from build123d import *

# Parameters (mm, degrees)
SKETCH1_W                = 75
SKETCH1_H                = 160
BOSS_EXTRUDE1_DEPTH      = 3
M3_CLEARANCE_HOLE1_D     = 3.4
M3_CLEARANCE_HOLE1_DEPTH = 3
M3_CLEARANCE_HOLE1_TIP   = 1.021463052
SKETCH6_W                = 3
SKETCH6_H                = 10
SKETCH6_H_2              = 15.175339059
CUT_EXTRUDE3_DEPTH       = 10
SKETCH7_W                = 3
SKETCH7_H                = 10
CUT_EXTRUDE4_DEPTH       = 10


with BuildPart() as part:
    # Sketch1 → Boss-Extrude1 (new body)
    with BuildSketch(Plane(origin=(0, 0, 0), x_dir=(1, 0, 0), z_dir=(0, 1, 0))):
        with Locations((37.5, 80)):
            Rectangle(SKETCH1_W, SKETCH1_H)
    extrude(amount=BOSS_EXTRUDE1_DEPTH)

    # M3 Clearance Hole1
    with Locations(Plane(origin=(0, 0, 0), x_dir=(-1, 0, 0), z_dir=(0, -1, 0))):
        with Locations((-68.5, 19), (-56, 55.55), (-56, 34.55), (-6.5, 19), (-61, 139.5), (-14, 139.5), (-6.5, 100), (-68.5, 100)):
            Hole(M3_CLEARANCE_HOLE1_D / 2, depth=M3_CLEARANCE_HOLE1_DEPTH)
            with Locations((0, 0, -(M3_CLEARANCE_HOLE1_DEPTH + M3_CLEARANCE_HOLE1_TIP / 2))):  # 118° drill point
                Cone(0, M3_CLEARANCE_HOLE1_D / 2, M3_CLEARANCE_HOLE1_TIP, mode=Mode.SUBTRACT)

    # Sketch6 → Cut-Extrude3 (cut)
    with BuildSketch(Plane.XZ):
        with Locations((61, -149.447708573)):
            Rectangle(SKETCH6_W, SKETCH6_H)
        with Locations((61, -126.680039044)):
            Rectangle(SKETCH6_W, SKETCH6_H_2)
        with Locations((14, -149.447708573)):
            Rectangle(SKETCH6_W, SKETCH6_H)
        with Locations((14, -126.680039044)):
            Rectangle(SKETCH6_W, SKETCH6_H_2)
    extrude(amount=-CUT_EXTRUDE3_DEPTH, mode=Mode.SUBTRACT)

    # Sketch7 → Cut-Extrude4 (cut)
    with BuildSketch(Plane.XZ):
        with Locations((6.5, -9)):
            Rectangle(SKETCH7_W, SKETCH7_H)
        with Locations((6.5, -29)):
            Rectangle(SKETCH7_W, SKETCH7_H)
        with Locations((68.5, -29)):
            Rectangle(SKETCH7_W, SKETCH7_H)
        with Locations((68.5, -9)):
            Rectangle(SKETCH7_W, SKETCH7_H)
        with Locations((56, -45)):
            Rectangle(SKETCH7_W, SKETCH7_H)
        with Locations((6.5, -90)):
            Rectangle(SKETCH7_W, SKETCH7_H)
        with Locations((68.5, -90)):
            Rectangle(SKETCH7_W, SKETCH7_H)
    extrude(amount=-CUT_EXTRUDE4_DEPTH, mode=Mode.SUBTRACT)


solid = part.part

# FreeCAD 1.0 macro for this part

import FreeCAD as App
import Part
import Sketcher
Q = App.Units.Quantity


def add_polygon(sketch, points):
    """Adds a closed chain of lines whose ends are joined by coincident constraints."""
    first, n = sketch.GeometryCount, len(points)
    for a, b in zip(points, points[1:] + points[:1]):
        sketch.addGeometry(Part.LineSegment(App.Vector(*a, 0), App.Vector(*b, 0)), False)
    for i in range(n):
        sketch.addConstraint(Sketcher.Constraint("Coincident", first + i, 2, first + (i + 1) % n, 1))

doc = App.newDocument("Part")
body = doc.addObject("PartDesign::Body", "Body")

sketch1 = doc.addObject("Sketcher::SketchObject", "Sketch")
body.addObject(sketch1)
sketch1.AttachmentSupport = (doc.XZ_Plane, [""])
sketch1.MapMode = "FlatFace"
add_polygon(sketch1, [(0, -160), (0, 0), (75, 0), (75, -160)])
sketch1.addConstraint(Sketcher.Constraint("Vertical", 0))
sketch1.addConstraint(Sketcher.Constraint("Horizontal", 1))
sketch1.addConstraint(Sketcher.Constraint("Vertical", 2))
sketch1.addConstraint(Sketcher.Constraint("Horizontal", 3))
sketch1.addConstraint(Sketcher.Constraint("Coincident", 0, 2, -1, 1))
sketch1.addConstraint(Sketcher.Constraint("DistanceX", 1, 1, 1, 2, Q("75 mm")))
sketch1.addConstraint(Sketcher.Constraint("DistanceY", 0, 1, 0, 2, Q("160 mm")))
pad1 = doc.addObject("PartDesign::Pad", "Pad")
body.addObject(pad1)
pad1.Profile = sketch1
pad1.Length = 3
pad1.Reversed = True

sketch2 = doc.addObject("Sketcher::SketchObject", "Sketch001")
body.addObject(sketch2)
sketch2.AttachmentSupport = (doc.XZ_Plane, [""])
sketch2.MapMode = "FlatFace"
sketch2.addGeometry(Part.Circle(App.Vector(68.5, -19, 0), App.Vector(0, 0, 1), 1.7), False)
sketch2.addGeometry(Part.Circle(App.Vector(56, -55.5, 0), App.Vector(0, 0, 1), 1.7), False)
sketch2.addGeometry(Part.Circle(App.Vector(56, -34.5, 0), App.Vector(0, 0, 1), 1.7), False)
sketch2.addGeometry(Part.Circle(App.Vector(6.5, -19, 0), App.Vector(0, 0, 1), 1.7), False)
sketch2.addGeometry(Part.Circle(App.Vector(61, -139.5, 0), App.Vector(0, 0, 1), 1.7), False)
sketch2.addGeometry(Part.Circle(App.Vector(14, -139.5, 0), App.Vector(0, 0, 1), 1.7), False)
sketch2.addGeometry(Part.Circle(App.Vector(6.5, -100, 0), App.Vector(0, 0, 1), 1.7), False)
sketch2.addGeometry(Part.Circle(App.Vector(68.5, -100, 0), App.Vector(0, 0, 1), 1.7), False)
sketch2.addConstraint(Sketcher.Constraint("Equal", 0, 1))
sketch2.addConstraint(Sketcher.Constraint("Equal", 1, 2))
sketch2.addConstraint(Sketcher.Constraint("Equal", 2, 3))
sketch2.addConstraint(Sketcher.Constraint("Equal", 3, 4))
sketch2.addConstraint(Sketcher.Constraint("Equal", 4, 5))
sketch2.addConstraint(Sketcher.Constraint("Equal", 5, 6))
sketch2.addConstraint(Sketcher.Constraint("Equal", 6, 7))
sketch2.addConstraint(Sketcher.Constraint("Horizontal", 0, 3, 3, 3))
sketch2.addConstraint(Sketcher.Constraint("Horizontal", 4, 3, 5, 3))
sketch2.addConstraint(Sketcher.Constraint("Horizontal", 6, 3, 7, 3))
sketch2.addConstraint(Sketcher.Constraint("Vertical", 1, 3, 2, 3))
sketch2.addConstraint(Sketcher.Constraint("Vertical", 3, 3, 6, 3))
sketch2.addConstraint(Sketcher.Constraint("Vertical", 0, 3, 7, 3))
sketch2.addConstraint(Sketcher.Constraint("Diameter", 0, Q("3.4 mm")))
sketch2.addConstraint(Sketcher.Constraint("DistanceY", 0, 3, -1, 1, Q("19 mm")))
sketch2.addConstraint(Sketcher.Constraint("DistanceX", -1, 1, 1, 3, Q("56 mm")))
sketch2.addConstraint(Sketcher.Constraint("DistanceX", -1, 1, 4, 3, Q("61 mm")))
sketch2.addConstraint(Sketcher.Constraint("DistanceX", -1, 1, 5, 3, Q("14 mm")))
sketch2.addConstraint(Sketcher.Constraint("DistanceY", 6, 3, -1, 1, Q("100 mm")))
sketch2.addConstraint(Sketcher.Constraint("DistanceY", 1, 3, 2, 3, Q("21 mm")))
sketch2.addConstraint(Sketcher.Constraint("DistanceX", 3, 3, 0, 3, Q("62 mm")))
sketch2.addConstraint(Sketcher.Constraint("DistanceX", -1, 1, 0, 3, Q("68.5 mm")))
sketch2.addConstraint(Sketcher.Constraint("DistanceY", 4, 3, -1, 1, Q("139.5 mm")))
sketch2.addConstraint(Sketcher.Constraint("DistanceY", 1, 3, -1, 1, Q("55.55 mm")))
doc.recompute()
hole = doc.addObject("PartDesign::Hole", "Hole")
body.addObject(hole)
hole.Profile = sketch2
hole.ThreadType = "None"
hole.Diameter = 3.4
hole.DepthType = "Dimension"
hole.Depth = 3
hole.DrillPoint = "Angled"
hole.DrillPointAngle = 118

sketch3 = doc.addObject("Sketcher::SketchObject", "Sketch002")
body.addObject(sketch3)
sketch3.AttachmentSupport = (doc.XZ_Plane, [""])
sketch3.MapMode = "FlatFace"
add_polygon(sketch3, [(59.5, -144.4), (59.5, -154.4), (62.5, -154.4), (62.5, -144.4)])
add_polygon(sketch3, [(59.5, -119.1), (59.5, -134.3), (62.5, -134.3), (62.5, -119.1)])
add_polygon(sketch3, [(12.5, -144.4), (12.5, -154.4), (15.5, -154.4), (15.5, -144.4)])
add_polygon(sketch3, [(12.5, -119.1), (12.5, -134.3), (15.5, -134.3), (15.5, -119.1)])
sketch3.addConstraint(Sketcher.Constraint("Vertical", 0))
sketch3.addConstraint(Sketcher.Constraint("Horizontal", 1))
sketch3.addConstraint(Sketcher.Constraint("Vertical", 2))
sketch3.addConstraint(Sketcher.Constraint("Horizontal", 3))
sketch3.addConstraint(Sketcher.Constraint("Vertical", 4))
sketch3.addConstraint(Sketcher.Constraint("Horizontal", 5))
sketch3.addConstraint(Sketcher.Constraint("Vertical", 6))
sketch3.addConstraint(Sketcher.Constraint("Horizontal", 7))
sketch3.addConstraint(Sketcher.Constraint("Vertical", 8))
sketch3.addConstraint(Sketcher.Constraint("Horizontal", 9))
sketch3.addConstraint(Sketcher.Constraint("Vertical", 10))
sketch3.addConstraint(Sketcher.Constraint("Horizontal", 11))
sketch3.addConstraint(Sketcher.Constraint("Vertical", 12))
sketch3.addConstraint(Sketcher.Constraint("Horizontal", 13))
sketch3.addConstraint(Sketcher.Constraint("Vertical", 14))
sketch3.addConstraint(Sketcher.Constraint("Horizontal", 15))
sketch3.addConstraint(Sketcher.Constraint("Horizontal", 1, 2, 8, 2))
sketch3.addConstraint(Sketcher.Constraint("Horizontal", 3, 2, 10, 2))
sketch3.addConstraint(Sketcher.Constraint("Horizontal", 5, 2, 12, 2))
sketch3.addConstraint(Sketcher.Constraint("Horizontal", 7, 2, 14, 2))
sketch3.addConstraint(Sketcher.Constraint("Vertical", 3, 2, 4, 2))
sketch3.addConstraint(Sketcher.Constraint("Vertical", 2, 2, 5, 2))
sketch3.addConstraint(Sketcher.Constraint("Vertical", 11, 2, 12, 2))
sketch3.addConstraint(Sketcher.Constraint("Vertical", 10, 2, 13, 2))
sketch3.addConstraint(Sketcher.Constraint("Equal", 7, 9))
sketch3.addConstraint(Sketcher.Constraint("DistanceX", 1, 1, 1, 2, Q("3 mm")))
sketch3.addConstraint(Sketcher.Constraint("DistanceY", 0, 2, 0, 1, Q("10 mm")))
sketch3.addConstraint(Sketcher.Constraint("DistanceX", 8, 2, 0, 2, Q("47 mm")))
sketch3.addConstraint(Sketcher.Constraint("DistanceX", -1, 1, 0, 2, Q("59.5 mm")))
sketch3.addConstraint(Sketcher.Constraint("DistanceY", 3, 2, 4, 2, Q("10.18 mm")))
sketch3.addConstraint(Sketcher.Constraint("DistanceY", 4, 2, 4, 1, Q("15.175339 mm")))
sketch3.addConstraint(Sketcher.Constraint("DistanceY", 0, 2, -1, 1, Q("154.447709 mm")))
pocket1 = doc.addObject("PartDesign::Pocket", "Pocket")
body.addObject(pocket1)
pocket1.Profile = sketch3
pocket1.Length = 10

sketch4 = doc.addObject("Sketcher::SketchObject", "Sketch003")
body.addObject(sketch4)
sketch4.AttachmentSupport = (doc.XZ_Plane, [""])
sketch4.MapMode = "FlatFace"
add_polygon(sketch4, [(5, -4), (5, -14), (8, -14), (8, -4)])
add_polygon(sketch4, [(5, -24), (5, -34), (8, -34), (8, -24)])
add_polygon(sketch4, [(67, -24), (67, -34), (70, -34), (70, -24)])
add_polygon(sketch4, [(67, -4), (67, -14), (70, -14), (70, -4)])
add_polygon(sketch4, [(54.5, -40), (54.5, -50), (57.5, -50), (57.5, -40)])
add_polygon(sketch4, [(5, -85), (5, -95), (8, -95), (8, -85)])
add_polygon(sketch4, [(67, -85), (67, -95), (70, -95), (70, -85)])
sketch4.addConstraint(Sketcher.Constraint("Vertical", 0))
sketch4.addConstraint(Sketcher.Constraint("Horizontal", 1))
sketch4.addConstraint(Sketcher.Constraint("Vertical", 2))
sketch4.addConstraint(Sketcher.Constraint("Horizontal", 3))
sketch4.addConstraint(Sketcher.Constraint("Vertical", 4))
sketch4.addConstraint(Sketcher.Constraint("Horizontal", 5))
sketch4.addConstraint(Sketcher.Constraint("Vertical", 6))
sketch4.addConstraint(Sketcher.Constraint("Horizontal", 7))
sketch4.addConstraint(Sketcher.Constraint("Vertical", 8))
sketch4.addConstraint(Sketcher.Constraint("Horizontal", 9))
sketch4.addConstraint(Sketcher.Constraint("Vertical", 10))
sketch4.addConstraint(Sketcher.Constraint("Horizontal", 11))
sketch4.addConstraint(Sketcher.Constraint("Vertical", 12))
sketch4.addConstraint(Sketcher.Constraint("Horizontal", 13))
sketch4.addConstraint(Sketcher.Constraint("Vertical", 14))
sketch4.addConstraint(Sketcher.Constraint("Horizontal", 15))
sketch4.addConstraint(Sketcher.Constraint("Vertical", 16))
sketch4.addConstraint(Sketcher.Constraint("Horizontal", 17))
sketch4.addConstraint(Sketcher.Constraint("Vertical", 18))
sketch4.addConstraint(Sketcher.Constraint("Horizontal", 19))
sketch4.addConstraint(Sketcher.Constraint("Vertical", 20))
sketch4.addConstraint(Sketcher.Constraint("Horizontal", 21))
sketch4.addConstraint(Sketcher.Constraint("Vertical", 22))
sketch4.addConstraint(Sketcher.Constraint("Horizontal", 23))
sketch4.addConstraint(Sketcher.Constraint("Vertical", 24))
sketch4.addConstraint(Sketcher.Constraint("Horizontal", 25))
sketch4.addConstraint(Sketcher.Constraint("Vertical", 26))
sketch4.addConstraint(Sketcher.Constraint("Horizontal", 27))
sketch4.addConstraint(Sketcher.Constraint("Horizontal", 5, 2, 8, 2))
sketch4.addConstraint(Sketcher.Constraint("Horizontal", 7, 2, 10, 2))
sketch4.addConstraint(Sketcher.Constraint("Horizontal", 1, 2, 12, 2))
sketch4.addConstraint(Sketcher.Constraint("Horizontal", 3, 2, 14, 2))
sketch4.addConstraint(Sketcher.Constraint("Horizontal", 21, 2, 24, 2))
sketch4.addConstraint(Sketcher.Constraint("Horizontal", 23, 2, 26, 2))
sketch4.addConstraint(Sketcher.Constraint("Vertical", 3, 2, 4, 2))
sketch4.addConstraint(Sketcher.Constraint("Vertical", 2, 2, 5, 2))
sketch4.addConstraint(Sketcher.Constraint("Vertical", 11, 2, 12, 2))
sketch4.addConstraint(Sketcher.Constraint("Vertical", 10, 2, 13, 2))
sketch4.addConstraint(Sketcher.Constraint("Vertical", 7, 2, 20, 2))
sketch4.addConstraint(Sketcher.Constraint("Vertical", 6, 2, 21, 2))
sketch4.addConstraint(Sketcher.Constraint("Vertical", 15, 2, 24, 2))
sketch4.addConstraint(Sketcher.Constraint("Vertical", 14, 2, 25, 2))
sketch4.addConstraint(Sketcher.Constraint("Equal", 7, 9))
sketch4.addConstraint(Sketcher.Constraint("Equal", 15, 17))
sketch4.addConstraint(Sketcher.Constraint("Equal", 2, 4))
sketch4.addConstraint(Sketcher.Constraint("Equal", 14, 16))
sketch4.addConstraint(Sketcher.Constraint("Equal", 18, 20))
sketch4.addConstraint(Sketcher.Constraint("DistanceX", 1, 1, 1, 2, Q("3 mm")))
sketch4.addConstraint(Sketcher.Constraint("DistanceY", 0, 2, 0, 1, Q("10 mm")))
sketch4.addConstraint(Sketcher.Constraint("DistanceX", -1, 1, 0, 2, Q("5 mm")))
sketch4.addConstraint(Sketcher.Constraint("DistanceY", 0, 2, -1, 1, Q("14 mm")))
sketch4.addConstraint(Sketcher.Constraint("DistanceY", 4, 2, -1, 1, Q("34 mm")))
sketch4.addConstraint(Sketcher.Constraint("DistanceX", -1, 1, 8, 2, Q("67 mm")))
sketch4.addConstraint(Sketcher.Constraint("DistanceY", 16, 2, -1, 1, Q("50 mm")))
sketch4.addConstraint(Sketcher.Constraint("DistanceY", 20, 2, -1, 1, Q("95 mm")))
sketch4.addConstraint(Sketcher.Constraint("DistanceX", -1, 1, 16, 2, Q("54.5 mm")))
pocket2 = doc.addObject("PartDesign::Pocket", "Pocket001")
body.addObject(pocket2)
pocket2.Profile = sketch4
pocket2.Length = 10

doc.recompute()
